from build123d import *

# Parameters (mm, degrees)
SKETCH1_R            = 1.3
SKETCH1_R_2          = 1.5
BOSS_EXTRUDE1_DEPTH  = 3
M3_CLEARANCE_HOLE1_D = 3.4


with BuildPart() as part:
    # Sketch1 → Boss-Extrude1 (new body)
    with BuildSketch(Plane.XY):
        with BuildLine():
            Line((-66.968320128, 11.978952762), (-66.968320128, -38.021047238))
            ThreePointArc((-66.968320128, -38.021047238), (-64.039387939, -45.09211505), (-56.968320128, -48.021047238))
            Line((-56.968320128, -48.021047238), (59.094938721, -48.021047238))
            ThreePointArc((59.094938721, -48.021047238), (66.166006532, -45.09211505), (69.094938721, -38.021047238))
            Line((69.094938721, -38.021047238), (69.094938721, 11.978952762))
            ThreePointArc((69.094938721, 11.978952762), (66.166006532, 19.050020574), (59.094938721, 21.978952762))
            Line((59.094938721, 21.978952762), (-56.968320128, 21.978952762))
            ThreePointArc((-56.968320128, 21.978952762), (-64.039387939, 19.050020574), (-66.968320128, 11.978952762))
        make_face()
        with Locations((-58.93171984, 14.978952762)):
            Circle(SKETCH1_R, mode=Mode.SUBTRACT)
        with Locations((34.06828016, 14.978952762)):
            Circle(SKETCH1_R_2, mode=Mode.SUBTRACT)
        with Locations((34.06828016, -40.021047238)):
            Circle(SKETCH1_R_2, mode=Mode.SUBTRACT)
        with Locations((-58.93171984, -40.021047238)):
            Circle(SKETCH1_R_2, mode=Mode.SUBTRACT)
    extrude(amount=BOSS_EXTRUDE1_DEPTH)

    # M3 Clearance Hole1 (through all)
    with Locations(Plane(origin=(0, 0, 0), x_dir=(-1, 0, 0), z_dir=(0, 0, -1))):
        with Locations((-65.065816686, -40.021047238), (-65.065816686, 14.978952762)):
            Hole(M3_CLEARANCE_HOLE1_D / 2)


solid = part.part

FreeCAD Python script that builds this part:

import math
import FreeCAD as App
import Part
import Sketcher
from FreeCAD import Vector

doc = App.newDocument("Part")
body = doc.addObject("PartDesign::Body", "Body")

# Sketch on XY plane
sketch1 = doc.addObject("Sketcher::SketchObject", "Sketch")
body.addObject(sketch1)
sketch1.AttachmentSupport = (doc.XY_Plane, [""])
sketch1.MapMode = "FlatFace"
sketch1.addGeometry(Part.LineSegment(Vector(-67, 12, 0), Vector(-67, -38, 0)), False)
sketch1.addGeometry(Part.ArcOfCircle(Part.Circle(Vector(-57, -38, 0), Vector(0, 0, 1), 10), math.radians(-180), math.radians(-90)), False)
sketch1.addGeometry(Part.LineSegment(Vector(-57, -48, 0), Vector(59.1, -48, 0)), False)
sketch1.addGeometry(Part.ArcOfCircle(Part.Circle(Vector(59.1, -38, 0), Vector(0, 0, 1), 10), math.radians(-90), math.radians(0)), False)
sketch1.addGeometry(Part.LineSegment(Vector(69.1, -38, 0), Vector(69.1, 12, 0)), False)
sketch1.addGeometry(Part.ArcOfCircle(Part.Circle(Vector(59.1, 12, 0), Vector(0, 0, 1), 10), math.radians(0), math.radians(90)), False)
sketch1.addGeometry(Part.LineSegment(Vector(59.1, 22, 0), Vector(-57, 22, 0)), False)
sketch1.addGeometry(Part.ArcOfCircle(Part.Circle(Vector(-57, 12, 0), Vector(0, 0, 1), 10), math.radians(90), math.radians(180)), False)
sketch1.addGeometry(Part.Circle(Vector(-58.9, -40, 0), Vector(0, 0, 1), 1.5), False)
sketch1.addGeometry(Part.Circle(Vector(34.1, -40, 0), Vector(0, 0, 1), 1.5), False)
sketch1.addGeometry(Part.Circle(Vector(-58.9, 15, 0), Vector(0, 0, 1), 1.3), False)
sketch1.addGeometry(Part.Circle(Vector(34.1, 15, 0), Vector(0, 0, 1), 1.5), False)
sketch1.addConstraint(Sketcher.Constraint("Tangent", 0, 2, 1, 1))
sketch1.addConstraint(Sketcher.Constraint("Tangent", 1, 2, 2, 1))
sketch1.addConstraint(Sketcher.Constraint("Tangent", 2, 2, 3, 1))
sketch1.addConstraint(Sketcher.Constraint("Tangent", 3, 2, 4, 1))
sketch1.addConstraint(Sketcher.Constraint("Tangent", 4, 2, 5, 1))
sketch1.addConstraint(Sketcher.Constraint("Tangent", 5, 2, 6, 1))
sketch1.addConstraint(Sketcher.Constraint("Tangent", 6, 2, 7, 1))
sketch1.addConstraint(Sketcher.Constraint("Tangent", 7, 2, 0, 1))
sketch1.addConstraint(Sketcher.Constraint("Vertical", 0))
sketch1.addConstraint(Sketcher.Constraint("Horizontal", 2))
sketch1.addConstraint(Sketcher.Constraint("Vertical", 4))
sketch1.addConstraint(Sketcher.Constraint("Horizontal", 6))
sketch1.addConstraint(Sketcher.Constraint("Equal", 1, 3))
sketch1.addConstraint(Sketcher.Constraint("Equal", 3, 5))
sketch1.addConstraint(Sketcher.Constraint("Equal", 5, 7))
sketch1.addConstraint(Sketcher.Constraint("Equal", 8, 9))
sketch1.addConstraint(Sketcher.Constraint("Equal", 9, 11))
sketch1.addConstraint(Sketcher.Constraint("Horizontal", 8, 3, 9, 3))
sketch1.addConstraint(Sketcher.Constraint("Horizontal", 10, 3, 11, 3))
sketch1.addConstraint(Sketcher.Constraint("Vertical", 8, 3, 10, 3))
sketch1.addConstraint(Sketcher.Constraint("Vertical", 9, 3, 11, 3))
sketch1.addConstraint(Sketcher.Constraint("Diameter", 8, 3.0))
sketch1.addConstraint(Sketcher.Constraint("Radius", 1, 10.0))
sketch1.addConstraint(Sketcher.Constraint("Diameter", 10, 2.6))
sketch1.addConstraint(Sketcher.Constraint("DistanceY", 0, 2, 0, 1, 50.0))
sketch1.addConstraint(Sketcher.Constraint("DistanceY", 8, 3, 1, 3, 2.0))
sketch1.addConstraint(Sketcher.Constraint("DistanceX", 8, 3, 9, 3, 93.0))
sketch1.addConstraint(Sketcher.Constraint("DistanceY", 7, 3, 10, 3, 3.0))
sketch1.addConstraint(Sketcher.Constraint("DistanceX", 2, 1, 2, 2, 116.063259))
sketch1.addConstraint(Sketcher.Constraint("DistanceX", 8, 3, 1, 3, 1.9634))
sketch1.addConstraint(Sketcher.Constraint("DistanceX", 1, 3, -1, 1, 56.96832))
sketch1.addConstraint(Sketcher.Constraint("DistanceY", 1, 3, -1, 1, 38.021047))
pad1 = doc.addObject("PartDesign::Pad", "Pad")
body.addObject(pad1)
pad1.Profile = sketch1
pad1.Length = 3

# Sketch on XY plane
sketch2 = doc.addObject("Sketcher::SketchObject", "Sketch001")
body.addObject(sketch2)
sketch2.AttachmentSupport = (doc.XY_Plane, [""])
sketch2.MapMode = "FlatFace"
sketch2.addGeometry(Part.Circle(Vector(65.1, -40, 0), Vector(0, 0, 1), 1.7), False)
sketch2.addGeometry(Part.Circle(Vector(65.1, 15, 0), Vector(0, 0, 1), 1.7), False)
sketch2.addConstraint(Sketcher.Constraint("Equal", 0, 1))
sketch2.addConstraint(Sketcher.Constraint("Vertical", 0, 3, 1, 3))
sketch2.addConstraint(Sketcher.Constraint("Diameter", 0, 3.4))
sketch2.addConstraint(Sketcher.Constraint("DistanceY", 0, 3, 1, 3, 55.0))
sketch2.addConstraint(Sketcher.Constraint("DistanceX", -1, 1, 0, 3, 65.065817))
sketch2.addConstraint(Sketcher.Constraint("DistanceY", 0, 3, -1, 1, 40.021047))
doc.recompute()
hole = doc.addObject("PartDesign::Hole", "Hole")
body.addObject(hole)
hole.Profile = sketch2
hole.ThreadType = "None"
hole.Diameter = 3.4
hole.DepthType = "ThroughAll"
hole.Reversed = True

doc.recompute()
